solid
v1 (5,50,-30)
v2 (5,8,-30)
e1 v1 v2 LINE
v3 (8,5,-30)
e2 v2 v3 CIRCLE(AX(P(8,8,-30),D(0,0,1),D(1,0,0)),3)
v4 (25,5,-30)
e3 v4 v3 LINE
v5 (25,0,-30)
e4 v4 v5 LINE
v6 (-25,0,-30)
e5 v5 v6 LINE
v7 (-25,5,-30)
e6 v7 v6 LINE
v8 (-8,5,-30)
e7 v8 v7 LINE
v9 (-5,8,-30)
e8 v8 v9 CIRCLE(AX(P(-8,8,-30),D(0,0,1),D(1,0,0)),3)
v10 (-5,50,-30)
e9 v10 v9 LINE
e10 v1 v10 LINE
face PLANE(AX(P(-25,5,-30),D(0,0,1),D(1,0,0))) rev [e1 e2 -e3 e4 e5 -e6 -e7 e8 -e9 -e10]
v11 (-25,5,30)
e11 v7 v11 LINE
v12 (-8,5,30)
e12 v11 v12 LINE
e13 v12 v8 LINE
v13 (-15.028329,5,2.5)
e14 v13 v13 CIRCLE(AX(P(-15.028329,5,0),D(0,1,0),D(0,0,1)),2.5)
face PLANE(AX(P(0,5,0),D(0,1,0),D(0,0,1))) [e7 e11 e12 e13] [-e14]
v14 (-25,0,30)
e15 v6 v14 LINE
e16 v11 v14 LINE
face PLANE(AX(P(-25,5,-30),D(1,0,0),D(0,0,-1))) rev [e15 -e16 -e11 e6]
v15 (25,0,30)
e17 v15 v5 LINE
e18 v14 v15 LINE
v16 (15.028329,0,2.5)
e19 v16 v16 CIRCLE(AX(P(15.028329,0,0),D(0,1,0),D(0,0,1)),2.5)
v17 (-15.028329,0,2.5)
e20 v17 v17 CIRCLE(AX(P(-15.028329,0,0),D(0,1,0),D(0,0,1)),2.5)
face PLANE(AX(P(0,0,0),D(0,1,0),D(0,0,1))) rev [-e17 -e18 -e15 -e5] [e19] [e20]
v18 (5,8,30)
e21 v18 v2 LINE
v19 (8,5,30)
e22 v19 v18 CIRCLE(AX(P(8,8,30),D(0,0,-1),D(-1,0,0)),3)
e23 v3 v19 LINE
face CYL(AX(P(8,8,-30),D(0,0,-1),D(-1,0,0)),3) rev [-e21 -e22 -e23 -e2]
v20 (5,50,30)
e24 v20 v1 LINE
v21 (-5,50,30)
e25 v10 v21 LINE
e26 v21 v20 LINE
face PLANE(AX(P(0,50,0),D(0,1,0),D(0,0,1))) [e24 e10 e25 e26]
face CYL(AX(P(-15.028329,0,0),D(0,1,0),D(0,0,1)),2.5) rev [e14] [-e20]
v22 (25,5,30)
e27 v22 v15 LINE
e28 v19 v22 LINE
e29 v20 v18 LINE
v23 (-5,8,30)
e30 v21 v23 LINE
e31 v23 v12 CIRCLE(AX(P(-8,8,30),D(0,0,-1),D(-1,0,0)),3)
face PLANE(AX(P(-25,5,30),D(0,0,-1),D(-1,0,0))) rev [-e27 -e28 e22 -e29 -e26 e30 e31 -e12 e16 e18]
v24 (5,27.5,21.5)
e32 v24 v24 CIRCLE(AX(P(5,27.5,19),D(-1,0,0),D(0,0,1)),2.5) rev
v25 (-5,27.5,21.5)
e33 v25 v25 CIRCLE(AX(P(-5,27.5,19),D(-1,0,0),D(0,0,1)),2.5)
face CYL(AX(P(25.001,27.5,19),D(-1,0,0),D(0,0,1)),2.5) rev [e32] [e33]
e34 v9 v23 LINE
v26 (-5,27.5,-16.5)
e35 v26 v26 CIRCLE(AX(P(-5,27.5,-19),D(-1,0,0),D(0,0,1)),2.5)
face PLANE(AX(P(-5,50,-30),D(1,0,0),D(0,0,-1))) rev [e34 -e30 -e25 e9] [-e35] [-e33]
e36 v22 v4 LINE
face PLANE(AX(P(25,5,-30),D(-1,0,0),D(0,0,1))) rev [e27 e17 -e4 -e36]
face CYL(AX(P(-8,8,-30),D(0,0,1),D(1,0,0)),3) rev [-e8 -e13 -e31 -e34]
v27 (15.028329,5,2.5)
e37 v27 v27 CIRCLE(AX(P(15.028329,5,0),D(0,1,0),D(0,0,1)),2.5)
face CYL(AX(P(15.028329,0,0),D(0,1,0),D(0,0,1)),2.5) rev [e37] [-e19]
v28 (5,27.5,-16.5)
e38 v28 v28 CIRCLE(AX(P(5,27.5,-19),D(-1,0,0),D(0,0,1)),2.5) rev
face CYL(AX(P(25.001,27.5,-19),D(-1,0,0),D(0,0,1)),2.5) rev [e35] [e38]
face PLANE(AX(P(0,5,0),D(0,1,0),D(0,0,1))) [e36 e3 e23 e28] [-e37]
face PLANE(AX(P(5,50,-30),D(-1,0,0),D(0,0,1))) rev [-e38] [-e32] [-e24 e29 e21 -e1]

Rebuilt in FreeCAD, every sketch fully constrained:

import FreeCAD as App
import Part
import Sketcher
from FreeCAD import Vector
Q = App.Units.Quantity


def edges_at(feature, points):
    """Names of the edges that pass closest to the given points."""
    edges = feature.Shape.Edges
    near = lambda p: min(range(len(edges)), key=lambda i: edges[i].distToShape(Part.Vertex(*p))[0])
    return sorted({f"Edge{near(p) + 1}" for p in points})

doc = App.newDocument("Part")
body = doc.addObject("PartDesign::Body", "Body")

# Sketch on XZ plane
sketch1 = body.newObject("Sketcher::SketchObject", "Sketch")
sketch1.AttachmentSupport = (doc.getObject("XZ_Plane"), [""])
sketch1.MapMode = "FlatFace"
sketch1.addGeometry([
    Part.LineSegment(Vector(-25, -30, 0), Vector(-25, 30, 0)),
    Part.LineSegment(Vector(-25, 30, 0), Vector(25, 30, 0)),
    Part.LineSegment(Vector(25, 30, 0), Vector(25, -30, 0)),
    Part.LineSegment(Vector(25, -30, 0), Vector(-25, -30, 0)),
], False)
sketch1.addConstraint([
    Sketcher.Constraint("Coincident", 0, 2, 1, 1),
    Sketcher.Constraint("Coincident", 1, 2, 2, 1),
    Sketcher.Constraint("Coincident", 2, 2, 3, 1),
    Sketcher.Constraint("Coincident", 3, 2, 0, 1),
    Sketcher.Constraint("Vertical", 0),
    Sketcher.Constraint("Horizontal", 1),
    Sketcher.Constraint("Vertical", 2),
    Sketcher.Constraint("Horizontal", 3),
    Sketcher.Constraint("Symmetric", 0, 2, 2, 2, -1, 1),
    Sketcher.Constraint("DistanceX", 1, 1, 1, 2, Q("50 mm")),
    Sketcher.Constraint("DistanceY", 0, 1, 0, 2, Q("60 mm")),
])
pad1 = body.newObject("PartDesign::Pad", "Pad")
pad1.Profile = sketch1
pad1.Length = 5
pad1.Reversed = True

# Sketch on XZ plane
sketch2 = body.newObject("Sketcher::SketchObject", "Sketch001")
sketch2.AttachmentSupport = (doc.getObject("XZ_Plane"), [""])
sketch2.MapMode = "FlatFace"
sketch2.AttachmentOffset = App.Placement(Vector(0, 0, -5), App.Rotation())
sketch2.addGeometry([
    Part.LineSegment(Vector(-5, -30, 0), Vector(-5, 30, 0)),
    Part.LineSegment(Vector(-5, 30, 0), Vector(5, 30, 0)),
    Part.LineSegment(Vector(5, 30, 0), Vector(5, -30, 0)),
    Part.LineSegment(Vector(5, -30, 0), Vector(-5, -30, 0)),
], False)
sketch2.addConstraint([
    Sketcher.Constraint("Coincident", 0, 2, 1, 1),
    Sketcher.Constraint("Coincident", 1, 2, 2, 1),
    Sketcher.Constraint("Coincident", 2, 2, 3, 1),
    Sketcher.Constraint("Coincident", 3, 2, 0, 1),
    Sketcher.Constraint("Vertical", 0),
    Sketcher.Constraint("Horizontal", 1),
    Sketcher.Constraint("Vertical", 2),
    Sketcher.Constraint("Horizontal", 3),
    Sketcher.Constraint("Symmetric", 0, 2, 2, 2, -1, 1),
    Sketcher.Constraint("DistanceX", 1, 1, 1, 2, Q("10 mm")),
    Sketcher.Constraint("DistanceY", 0, 1, 0, 2, Q("60 mm")),
])
pad2 = body.newObject("PartDesign::Pad", "Pad001")
pad2.Profile = sketch2
pad2.Length = 45
pad2.Reversed = True

# Sketch on XZ plane
sketch3 = body.newObject("Sketcher::SketchObject", "Sketch002")
sketch3.AttachmentSupport = (doc.getObject("XZ_Plane"), [""])
sketch3.MapMode = "FlatFace"
sketch3.AttachmentOffset = App.Placement(Vector(0, 0, -5), App.Rotation())
sketch3.addGeometry([
    Part.Circle(Vector(-15, 0, 0), Vector(0, 0, 1), 2.5),
    Part.Circle(Vector(15, 0, 0), Vector(0, 0, 1), 2.5),
], False)
sketch3.addConstraint([
    Sketcher.Constraint("Equal", 0, 1),
    Sketcher.Constraint("Symmetric", 0, 3, 1, 3, -1, 1),
    Sketcher.Constraint("PointOnObject", 0, 3, -1),
    Sketcher.Constraint("Diameter", 0, Q("5 mm")),
    Sketcher.Constraint("DistanceX", 0, 3, -1, 1, Q("15.028329 mm")),
])
pocket1 = body.newObject("PartDesign::Pocket", "Pocket")
pocket1.Profile = sketch3
pocket1.Type = "ThroughAll"
pocket1.Reversed = True

# Sketch on YZ plane
sketch4 = body.newObject("Sketcher::SketchObject", "Sketch003")
sketch4.AttachmentSupport = (doc.getObject("YZ_Plane"), [""])
sketch4.MapMode = "FlatFace"
sketch4.AttachmentOffset = App.Placement(Vector(0, 0, -5), App.Rotation())
sketch4.addGeometry(Part.Circle(Vector(27.5, -19, 0), Vector(0, 0, 1), 2.5), False)
sketch4.addConstraint([
    Sketcher.Constraint("Diameter", 0, Q("5 mm")),
    Sketcher.Constraint("DistanceY", 0, 3, -1, 1, Q("19 mm")),
    Sketcher.Constraint("DistanceX", -1, 1, 0, 3, Q("27.5 mm")),
])
pocket2 = body.newObject("PartDesign::Pocket", "Pocket001")
pocket2.Profile = sketch4
pocket2.Type = "UpToFirst"
pocket2.Reversed = True

# Sketch on YZ plane
sketch5 = body.newObject("Sketcher::SketchObject", "Sketch004")
sketch5.AttachmentSupport = (doc.getObject("YZ_Plane"), [""])
sketch5.MapMode = "FlatFace"
sketch5.AttachmentOffset = App.Placement(Vector(0, 0, -5), App.Rotation())
sketch5.addGeometry(Part.Circle(Vector(27.5, 19, 0), Vector(0, 0, 1), 2.5), False)
sketch5.addConstraint([
    Sketcher.Constraint("Diameter", 0, Q("5 mm")),
    Sketcher.Constraint("DistanceY", -1, 1, 0, 3, Q("19 mm")),
    Sketcher.Constraint("DistanceX", -1, 1, 0, 3, Q("27.5 mm")),
])
pocket3 = body.newObject("PartDesign::Pocket", "Pocket002")
pocket3.Profile = sketch5
pocket3.Type = "UpToFirst"
pocket3.Reversed = True
doc.recompute()

fillet = body.newObject("PartDesign::Fillet", "Fillet")
fillet.Base = (pocket3, edges_at(pocket3, [(5, 5, 0), (-5, 5, 0)]))
fillet.Radius = 3

doc.recompute()
